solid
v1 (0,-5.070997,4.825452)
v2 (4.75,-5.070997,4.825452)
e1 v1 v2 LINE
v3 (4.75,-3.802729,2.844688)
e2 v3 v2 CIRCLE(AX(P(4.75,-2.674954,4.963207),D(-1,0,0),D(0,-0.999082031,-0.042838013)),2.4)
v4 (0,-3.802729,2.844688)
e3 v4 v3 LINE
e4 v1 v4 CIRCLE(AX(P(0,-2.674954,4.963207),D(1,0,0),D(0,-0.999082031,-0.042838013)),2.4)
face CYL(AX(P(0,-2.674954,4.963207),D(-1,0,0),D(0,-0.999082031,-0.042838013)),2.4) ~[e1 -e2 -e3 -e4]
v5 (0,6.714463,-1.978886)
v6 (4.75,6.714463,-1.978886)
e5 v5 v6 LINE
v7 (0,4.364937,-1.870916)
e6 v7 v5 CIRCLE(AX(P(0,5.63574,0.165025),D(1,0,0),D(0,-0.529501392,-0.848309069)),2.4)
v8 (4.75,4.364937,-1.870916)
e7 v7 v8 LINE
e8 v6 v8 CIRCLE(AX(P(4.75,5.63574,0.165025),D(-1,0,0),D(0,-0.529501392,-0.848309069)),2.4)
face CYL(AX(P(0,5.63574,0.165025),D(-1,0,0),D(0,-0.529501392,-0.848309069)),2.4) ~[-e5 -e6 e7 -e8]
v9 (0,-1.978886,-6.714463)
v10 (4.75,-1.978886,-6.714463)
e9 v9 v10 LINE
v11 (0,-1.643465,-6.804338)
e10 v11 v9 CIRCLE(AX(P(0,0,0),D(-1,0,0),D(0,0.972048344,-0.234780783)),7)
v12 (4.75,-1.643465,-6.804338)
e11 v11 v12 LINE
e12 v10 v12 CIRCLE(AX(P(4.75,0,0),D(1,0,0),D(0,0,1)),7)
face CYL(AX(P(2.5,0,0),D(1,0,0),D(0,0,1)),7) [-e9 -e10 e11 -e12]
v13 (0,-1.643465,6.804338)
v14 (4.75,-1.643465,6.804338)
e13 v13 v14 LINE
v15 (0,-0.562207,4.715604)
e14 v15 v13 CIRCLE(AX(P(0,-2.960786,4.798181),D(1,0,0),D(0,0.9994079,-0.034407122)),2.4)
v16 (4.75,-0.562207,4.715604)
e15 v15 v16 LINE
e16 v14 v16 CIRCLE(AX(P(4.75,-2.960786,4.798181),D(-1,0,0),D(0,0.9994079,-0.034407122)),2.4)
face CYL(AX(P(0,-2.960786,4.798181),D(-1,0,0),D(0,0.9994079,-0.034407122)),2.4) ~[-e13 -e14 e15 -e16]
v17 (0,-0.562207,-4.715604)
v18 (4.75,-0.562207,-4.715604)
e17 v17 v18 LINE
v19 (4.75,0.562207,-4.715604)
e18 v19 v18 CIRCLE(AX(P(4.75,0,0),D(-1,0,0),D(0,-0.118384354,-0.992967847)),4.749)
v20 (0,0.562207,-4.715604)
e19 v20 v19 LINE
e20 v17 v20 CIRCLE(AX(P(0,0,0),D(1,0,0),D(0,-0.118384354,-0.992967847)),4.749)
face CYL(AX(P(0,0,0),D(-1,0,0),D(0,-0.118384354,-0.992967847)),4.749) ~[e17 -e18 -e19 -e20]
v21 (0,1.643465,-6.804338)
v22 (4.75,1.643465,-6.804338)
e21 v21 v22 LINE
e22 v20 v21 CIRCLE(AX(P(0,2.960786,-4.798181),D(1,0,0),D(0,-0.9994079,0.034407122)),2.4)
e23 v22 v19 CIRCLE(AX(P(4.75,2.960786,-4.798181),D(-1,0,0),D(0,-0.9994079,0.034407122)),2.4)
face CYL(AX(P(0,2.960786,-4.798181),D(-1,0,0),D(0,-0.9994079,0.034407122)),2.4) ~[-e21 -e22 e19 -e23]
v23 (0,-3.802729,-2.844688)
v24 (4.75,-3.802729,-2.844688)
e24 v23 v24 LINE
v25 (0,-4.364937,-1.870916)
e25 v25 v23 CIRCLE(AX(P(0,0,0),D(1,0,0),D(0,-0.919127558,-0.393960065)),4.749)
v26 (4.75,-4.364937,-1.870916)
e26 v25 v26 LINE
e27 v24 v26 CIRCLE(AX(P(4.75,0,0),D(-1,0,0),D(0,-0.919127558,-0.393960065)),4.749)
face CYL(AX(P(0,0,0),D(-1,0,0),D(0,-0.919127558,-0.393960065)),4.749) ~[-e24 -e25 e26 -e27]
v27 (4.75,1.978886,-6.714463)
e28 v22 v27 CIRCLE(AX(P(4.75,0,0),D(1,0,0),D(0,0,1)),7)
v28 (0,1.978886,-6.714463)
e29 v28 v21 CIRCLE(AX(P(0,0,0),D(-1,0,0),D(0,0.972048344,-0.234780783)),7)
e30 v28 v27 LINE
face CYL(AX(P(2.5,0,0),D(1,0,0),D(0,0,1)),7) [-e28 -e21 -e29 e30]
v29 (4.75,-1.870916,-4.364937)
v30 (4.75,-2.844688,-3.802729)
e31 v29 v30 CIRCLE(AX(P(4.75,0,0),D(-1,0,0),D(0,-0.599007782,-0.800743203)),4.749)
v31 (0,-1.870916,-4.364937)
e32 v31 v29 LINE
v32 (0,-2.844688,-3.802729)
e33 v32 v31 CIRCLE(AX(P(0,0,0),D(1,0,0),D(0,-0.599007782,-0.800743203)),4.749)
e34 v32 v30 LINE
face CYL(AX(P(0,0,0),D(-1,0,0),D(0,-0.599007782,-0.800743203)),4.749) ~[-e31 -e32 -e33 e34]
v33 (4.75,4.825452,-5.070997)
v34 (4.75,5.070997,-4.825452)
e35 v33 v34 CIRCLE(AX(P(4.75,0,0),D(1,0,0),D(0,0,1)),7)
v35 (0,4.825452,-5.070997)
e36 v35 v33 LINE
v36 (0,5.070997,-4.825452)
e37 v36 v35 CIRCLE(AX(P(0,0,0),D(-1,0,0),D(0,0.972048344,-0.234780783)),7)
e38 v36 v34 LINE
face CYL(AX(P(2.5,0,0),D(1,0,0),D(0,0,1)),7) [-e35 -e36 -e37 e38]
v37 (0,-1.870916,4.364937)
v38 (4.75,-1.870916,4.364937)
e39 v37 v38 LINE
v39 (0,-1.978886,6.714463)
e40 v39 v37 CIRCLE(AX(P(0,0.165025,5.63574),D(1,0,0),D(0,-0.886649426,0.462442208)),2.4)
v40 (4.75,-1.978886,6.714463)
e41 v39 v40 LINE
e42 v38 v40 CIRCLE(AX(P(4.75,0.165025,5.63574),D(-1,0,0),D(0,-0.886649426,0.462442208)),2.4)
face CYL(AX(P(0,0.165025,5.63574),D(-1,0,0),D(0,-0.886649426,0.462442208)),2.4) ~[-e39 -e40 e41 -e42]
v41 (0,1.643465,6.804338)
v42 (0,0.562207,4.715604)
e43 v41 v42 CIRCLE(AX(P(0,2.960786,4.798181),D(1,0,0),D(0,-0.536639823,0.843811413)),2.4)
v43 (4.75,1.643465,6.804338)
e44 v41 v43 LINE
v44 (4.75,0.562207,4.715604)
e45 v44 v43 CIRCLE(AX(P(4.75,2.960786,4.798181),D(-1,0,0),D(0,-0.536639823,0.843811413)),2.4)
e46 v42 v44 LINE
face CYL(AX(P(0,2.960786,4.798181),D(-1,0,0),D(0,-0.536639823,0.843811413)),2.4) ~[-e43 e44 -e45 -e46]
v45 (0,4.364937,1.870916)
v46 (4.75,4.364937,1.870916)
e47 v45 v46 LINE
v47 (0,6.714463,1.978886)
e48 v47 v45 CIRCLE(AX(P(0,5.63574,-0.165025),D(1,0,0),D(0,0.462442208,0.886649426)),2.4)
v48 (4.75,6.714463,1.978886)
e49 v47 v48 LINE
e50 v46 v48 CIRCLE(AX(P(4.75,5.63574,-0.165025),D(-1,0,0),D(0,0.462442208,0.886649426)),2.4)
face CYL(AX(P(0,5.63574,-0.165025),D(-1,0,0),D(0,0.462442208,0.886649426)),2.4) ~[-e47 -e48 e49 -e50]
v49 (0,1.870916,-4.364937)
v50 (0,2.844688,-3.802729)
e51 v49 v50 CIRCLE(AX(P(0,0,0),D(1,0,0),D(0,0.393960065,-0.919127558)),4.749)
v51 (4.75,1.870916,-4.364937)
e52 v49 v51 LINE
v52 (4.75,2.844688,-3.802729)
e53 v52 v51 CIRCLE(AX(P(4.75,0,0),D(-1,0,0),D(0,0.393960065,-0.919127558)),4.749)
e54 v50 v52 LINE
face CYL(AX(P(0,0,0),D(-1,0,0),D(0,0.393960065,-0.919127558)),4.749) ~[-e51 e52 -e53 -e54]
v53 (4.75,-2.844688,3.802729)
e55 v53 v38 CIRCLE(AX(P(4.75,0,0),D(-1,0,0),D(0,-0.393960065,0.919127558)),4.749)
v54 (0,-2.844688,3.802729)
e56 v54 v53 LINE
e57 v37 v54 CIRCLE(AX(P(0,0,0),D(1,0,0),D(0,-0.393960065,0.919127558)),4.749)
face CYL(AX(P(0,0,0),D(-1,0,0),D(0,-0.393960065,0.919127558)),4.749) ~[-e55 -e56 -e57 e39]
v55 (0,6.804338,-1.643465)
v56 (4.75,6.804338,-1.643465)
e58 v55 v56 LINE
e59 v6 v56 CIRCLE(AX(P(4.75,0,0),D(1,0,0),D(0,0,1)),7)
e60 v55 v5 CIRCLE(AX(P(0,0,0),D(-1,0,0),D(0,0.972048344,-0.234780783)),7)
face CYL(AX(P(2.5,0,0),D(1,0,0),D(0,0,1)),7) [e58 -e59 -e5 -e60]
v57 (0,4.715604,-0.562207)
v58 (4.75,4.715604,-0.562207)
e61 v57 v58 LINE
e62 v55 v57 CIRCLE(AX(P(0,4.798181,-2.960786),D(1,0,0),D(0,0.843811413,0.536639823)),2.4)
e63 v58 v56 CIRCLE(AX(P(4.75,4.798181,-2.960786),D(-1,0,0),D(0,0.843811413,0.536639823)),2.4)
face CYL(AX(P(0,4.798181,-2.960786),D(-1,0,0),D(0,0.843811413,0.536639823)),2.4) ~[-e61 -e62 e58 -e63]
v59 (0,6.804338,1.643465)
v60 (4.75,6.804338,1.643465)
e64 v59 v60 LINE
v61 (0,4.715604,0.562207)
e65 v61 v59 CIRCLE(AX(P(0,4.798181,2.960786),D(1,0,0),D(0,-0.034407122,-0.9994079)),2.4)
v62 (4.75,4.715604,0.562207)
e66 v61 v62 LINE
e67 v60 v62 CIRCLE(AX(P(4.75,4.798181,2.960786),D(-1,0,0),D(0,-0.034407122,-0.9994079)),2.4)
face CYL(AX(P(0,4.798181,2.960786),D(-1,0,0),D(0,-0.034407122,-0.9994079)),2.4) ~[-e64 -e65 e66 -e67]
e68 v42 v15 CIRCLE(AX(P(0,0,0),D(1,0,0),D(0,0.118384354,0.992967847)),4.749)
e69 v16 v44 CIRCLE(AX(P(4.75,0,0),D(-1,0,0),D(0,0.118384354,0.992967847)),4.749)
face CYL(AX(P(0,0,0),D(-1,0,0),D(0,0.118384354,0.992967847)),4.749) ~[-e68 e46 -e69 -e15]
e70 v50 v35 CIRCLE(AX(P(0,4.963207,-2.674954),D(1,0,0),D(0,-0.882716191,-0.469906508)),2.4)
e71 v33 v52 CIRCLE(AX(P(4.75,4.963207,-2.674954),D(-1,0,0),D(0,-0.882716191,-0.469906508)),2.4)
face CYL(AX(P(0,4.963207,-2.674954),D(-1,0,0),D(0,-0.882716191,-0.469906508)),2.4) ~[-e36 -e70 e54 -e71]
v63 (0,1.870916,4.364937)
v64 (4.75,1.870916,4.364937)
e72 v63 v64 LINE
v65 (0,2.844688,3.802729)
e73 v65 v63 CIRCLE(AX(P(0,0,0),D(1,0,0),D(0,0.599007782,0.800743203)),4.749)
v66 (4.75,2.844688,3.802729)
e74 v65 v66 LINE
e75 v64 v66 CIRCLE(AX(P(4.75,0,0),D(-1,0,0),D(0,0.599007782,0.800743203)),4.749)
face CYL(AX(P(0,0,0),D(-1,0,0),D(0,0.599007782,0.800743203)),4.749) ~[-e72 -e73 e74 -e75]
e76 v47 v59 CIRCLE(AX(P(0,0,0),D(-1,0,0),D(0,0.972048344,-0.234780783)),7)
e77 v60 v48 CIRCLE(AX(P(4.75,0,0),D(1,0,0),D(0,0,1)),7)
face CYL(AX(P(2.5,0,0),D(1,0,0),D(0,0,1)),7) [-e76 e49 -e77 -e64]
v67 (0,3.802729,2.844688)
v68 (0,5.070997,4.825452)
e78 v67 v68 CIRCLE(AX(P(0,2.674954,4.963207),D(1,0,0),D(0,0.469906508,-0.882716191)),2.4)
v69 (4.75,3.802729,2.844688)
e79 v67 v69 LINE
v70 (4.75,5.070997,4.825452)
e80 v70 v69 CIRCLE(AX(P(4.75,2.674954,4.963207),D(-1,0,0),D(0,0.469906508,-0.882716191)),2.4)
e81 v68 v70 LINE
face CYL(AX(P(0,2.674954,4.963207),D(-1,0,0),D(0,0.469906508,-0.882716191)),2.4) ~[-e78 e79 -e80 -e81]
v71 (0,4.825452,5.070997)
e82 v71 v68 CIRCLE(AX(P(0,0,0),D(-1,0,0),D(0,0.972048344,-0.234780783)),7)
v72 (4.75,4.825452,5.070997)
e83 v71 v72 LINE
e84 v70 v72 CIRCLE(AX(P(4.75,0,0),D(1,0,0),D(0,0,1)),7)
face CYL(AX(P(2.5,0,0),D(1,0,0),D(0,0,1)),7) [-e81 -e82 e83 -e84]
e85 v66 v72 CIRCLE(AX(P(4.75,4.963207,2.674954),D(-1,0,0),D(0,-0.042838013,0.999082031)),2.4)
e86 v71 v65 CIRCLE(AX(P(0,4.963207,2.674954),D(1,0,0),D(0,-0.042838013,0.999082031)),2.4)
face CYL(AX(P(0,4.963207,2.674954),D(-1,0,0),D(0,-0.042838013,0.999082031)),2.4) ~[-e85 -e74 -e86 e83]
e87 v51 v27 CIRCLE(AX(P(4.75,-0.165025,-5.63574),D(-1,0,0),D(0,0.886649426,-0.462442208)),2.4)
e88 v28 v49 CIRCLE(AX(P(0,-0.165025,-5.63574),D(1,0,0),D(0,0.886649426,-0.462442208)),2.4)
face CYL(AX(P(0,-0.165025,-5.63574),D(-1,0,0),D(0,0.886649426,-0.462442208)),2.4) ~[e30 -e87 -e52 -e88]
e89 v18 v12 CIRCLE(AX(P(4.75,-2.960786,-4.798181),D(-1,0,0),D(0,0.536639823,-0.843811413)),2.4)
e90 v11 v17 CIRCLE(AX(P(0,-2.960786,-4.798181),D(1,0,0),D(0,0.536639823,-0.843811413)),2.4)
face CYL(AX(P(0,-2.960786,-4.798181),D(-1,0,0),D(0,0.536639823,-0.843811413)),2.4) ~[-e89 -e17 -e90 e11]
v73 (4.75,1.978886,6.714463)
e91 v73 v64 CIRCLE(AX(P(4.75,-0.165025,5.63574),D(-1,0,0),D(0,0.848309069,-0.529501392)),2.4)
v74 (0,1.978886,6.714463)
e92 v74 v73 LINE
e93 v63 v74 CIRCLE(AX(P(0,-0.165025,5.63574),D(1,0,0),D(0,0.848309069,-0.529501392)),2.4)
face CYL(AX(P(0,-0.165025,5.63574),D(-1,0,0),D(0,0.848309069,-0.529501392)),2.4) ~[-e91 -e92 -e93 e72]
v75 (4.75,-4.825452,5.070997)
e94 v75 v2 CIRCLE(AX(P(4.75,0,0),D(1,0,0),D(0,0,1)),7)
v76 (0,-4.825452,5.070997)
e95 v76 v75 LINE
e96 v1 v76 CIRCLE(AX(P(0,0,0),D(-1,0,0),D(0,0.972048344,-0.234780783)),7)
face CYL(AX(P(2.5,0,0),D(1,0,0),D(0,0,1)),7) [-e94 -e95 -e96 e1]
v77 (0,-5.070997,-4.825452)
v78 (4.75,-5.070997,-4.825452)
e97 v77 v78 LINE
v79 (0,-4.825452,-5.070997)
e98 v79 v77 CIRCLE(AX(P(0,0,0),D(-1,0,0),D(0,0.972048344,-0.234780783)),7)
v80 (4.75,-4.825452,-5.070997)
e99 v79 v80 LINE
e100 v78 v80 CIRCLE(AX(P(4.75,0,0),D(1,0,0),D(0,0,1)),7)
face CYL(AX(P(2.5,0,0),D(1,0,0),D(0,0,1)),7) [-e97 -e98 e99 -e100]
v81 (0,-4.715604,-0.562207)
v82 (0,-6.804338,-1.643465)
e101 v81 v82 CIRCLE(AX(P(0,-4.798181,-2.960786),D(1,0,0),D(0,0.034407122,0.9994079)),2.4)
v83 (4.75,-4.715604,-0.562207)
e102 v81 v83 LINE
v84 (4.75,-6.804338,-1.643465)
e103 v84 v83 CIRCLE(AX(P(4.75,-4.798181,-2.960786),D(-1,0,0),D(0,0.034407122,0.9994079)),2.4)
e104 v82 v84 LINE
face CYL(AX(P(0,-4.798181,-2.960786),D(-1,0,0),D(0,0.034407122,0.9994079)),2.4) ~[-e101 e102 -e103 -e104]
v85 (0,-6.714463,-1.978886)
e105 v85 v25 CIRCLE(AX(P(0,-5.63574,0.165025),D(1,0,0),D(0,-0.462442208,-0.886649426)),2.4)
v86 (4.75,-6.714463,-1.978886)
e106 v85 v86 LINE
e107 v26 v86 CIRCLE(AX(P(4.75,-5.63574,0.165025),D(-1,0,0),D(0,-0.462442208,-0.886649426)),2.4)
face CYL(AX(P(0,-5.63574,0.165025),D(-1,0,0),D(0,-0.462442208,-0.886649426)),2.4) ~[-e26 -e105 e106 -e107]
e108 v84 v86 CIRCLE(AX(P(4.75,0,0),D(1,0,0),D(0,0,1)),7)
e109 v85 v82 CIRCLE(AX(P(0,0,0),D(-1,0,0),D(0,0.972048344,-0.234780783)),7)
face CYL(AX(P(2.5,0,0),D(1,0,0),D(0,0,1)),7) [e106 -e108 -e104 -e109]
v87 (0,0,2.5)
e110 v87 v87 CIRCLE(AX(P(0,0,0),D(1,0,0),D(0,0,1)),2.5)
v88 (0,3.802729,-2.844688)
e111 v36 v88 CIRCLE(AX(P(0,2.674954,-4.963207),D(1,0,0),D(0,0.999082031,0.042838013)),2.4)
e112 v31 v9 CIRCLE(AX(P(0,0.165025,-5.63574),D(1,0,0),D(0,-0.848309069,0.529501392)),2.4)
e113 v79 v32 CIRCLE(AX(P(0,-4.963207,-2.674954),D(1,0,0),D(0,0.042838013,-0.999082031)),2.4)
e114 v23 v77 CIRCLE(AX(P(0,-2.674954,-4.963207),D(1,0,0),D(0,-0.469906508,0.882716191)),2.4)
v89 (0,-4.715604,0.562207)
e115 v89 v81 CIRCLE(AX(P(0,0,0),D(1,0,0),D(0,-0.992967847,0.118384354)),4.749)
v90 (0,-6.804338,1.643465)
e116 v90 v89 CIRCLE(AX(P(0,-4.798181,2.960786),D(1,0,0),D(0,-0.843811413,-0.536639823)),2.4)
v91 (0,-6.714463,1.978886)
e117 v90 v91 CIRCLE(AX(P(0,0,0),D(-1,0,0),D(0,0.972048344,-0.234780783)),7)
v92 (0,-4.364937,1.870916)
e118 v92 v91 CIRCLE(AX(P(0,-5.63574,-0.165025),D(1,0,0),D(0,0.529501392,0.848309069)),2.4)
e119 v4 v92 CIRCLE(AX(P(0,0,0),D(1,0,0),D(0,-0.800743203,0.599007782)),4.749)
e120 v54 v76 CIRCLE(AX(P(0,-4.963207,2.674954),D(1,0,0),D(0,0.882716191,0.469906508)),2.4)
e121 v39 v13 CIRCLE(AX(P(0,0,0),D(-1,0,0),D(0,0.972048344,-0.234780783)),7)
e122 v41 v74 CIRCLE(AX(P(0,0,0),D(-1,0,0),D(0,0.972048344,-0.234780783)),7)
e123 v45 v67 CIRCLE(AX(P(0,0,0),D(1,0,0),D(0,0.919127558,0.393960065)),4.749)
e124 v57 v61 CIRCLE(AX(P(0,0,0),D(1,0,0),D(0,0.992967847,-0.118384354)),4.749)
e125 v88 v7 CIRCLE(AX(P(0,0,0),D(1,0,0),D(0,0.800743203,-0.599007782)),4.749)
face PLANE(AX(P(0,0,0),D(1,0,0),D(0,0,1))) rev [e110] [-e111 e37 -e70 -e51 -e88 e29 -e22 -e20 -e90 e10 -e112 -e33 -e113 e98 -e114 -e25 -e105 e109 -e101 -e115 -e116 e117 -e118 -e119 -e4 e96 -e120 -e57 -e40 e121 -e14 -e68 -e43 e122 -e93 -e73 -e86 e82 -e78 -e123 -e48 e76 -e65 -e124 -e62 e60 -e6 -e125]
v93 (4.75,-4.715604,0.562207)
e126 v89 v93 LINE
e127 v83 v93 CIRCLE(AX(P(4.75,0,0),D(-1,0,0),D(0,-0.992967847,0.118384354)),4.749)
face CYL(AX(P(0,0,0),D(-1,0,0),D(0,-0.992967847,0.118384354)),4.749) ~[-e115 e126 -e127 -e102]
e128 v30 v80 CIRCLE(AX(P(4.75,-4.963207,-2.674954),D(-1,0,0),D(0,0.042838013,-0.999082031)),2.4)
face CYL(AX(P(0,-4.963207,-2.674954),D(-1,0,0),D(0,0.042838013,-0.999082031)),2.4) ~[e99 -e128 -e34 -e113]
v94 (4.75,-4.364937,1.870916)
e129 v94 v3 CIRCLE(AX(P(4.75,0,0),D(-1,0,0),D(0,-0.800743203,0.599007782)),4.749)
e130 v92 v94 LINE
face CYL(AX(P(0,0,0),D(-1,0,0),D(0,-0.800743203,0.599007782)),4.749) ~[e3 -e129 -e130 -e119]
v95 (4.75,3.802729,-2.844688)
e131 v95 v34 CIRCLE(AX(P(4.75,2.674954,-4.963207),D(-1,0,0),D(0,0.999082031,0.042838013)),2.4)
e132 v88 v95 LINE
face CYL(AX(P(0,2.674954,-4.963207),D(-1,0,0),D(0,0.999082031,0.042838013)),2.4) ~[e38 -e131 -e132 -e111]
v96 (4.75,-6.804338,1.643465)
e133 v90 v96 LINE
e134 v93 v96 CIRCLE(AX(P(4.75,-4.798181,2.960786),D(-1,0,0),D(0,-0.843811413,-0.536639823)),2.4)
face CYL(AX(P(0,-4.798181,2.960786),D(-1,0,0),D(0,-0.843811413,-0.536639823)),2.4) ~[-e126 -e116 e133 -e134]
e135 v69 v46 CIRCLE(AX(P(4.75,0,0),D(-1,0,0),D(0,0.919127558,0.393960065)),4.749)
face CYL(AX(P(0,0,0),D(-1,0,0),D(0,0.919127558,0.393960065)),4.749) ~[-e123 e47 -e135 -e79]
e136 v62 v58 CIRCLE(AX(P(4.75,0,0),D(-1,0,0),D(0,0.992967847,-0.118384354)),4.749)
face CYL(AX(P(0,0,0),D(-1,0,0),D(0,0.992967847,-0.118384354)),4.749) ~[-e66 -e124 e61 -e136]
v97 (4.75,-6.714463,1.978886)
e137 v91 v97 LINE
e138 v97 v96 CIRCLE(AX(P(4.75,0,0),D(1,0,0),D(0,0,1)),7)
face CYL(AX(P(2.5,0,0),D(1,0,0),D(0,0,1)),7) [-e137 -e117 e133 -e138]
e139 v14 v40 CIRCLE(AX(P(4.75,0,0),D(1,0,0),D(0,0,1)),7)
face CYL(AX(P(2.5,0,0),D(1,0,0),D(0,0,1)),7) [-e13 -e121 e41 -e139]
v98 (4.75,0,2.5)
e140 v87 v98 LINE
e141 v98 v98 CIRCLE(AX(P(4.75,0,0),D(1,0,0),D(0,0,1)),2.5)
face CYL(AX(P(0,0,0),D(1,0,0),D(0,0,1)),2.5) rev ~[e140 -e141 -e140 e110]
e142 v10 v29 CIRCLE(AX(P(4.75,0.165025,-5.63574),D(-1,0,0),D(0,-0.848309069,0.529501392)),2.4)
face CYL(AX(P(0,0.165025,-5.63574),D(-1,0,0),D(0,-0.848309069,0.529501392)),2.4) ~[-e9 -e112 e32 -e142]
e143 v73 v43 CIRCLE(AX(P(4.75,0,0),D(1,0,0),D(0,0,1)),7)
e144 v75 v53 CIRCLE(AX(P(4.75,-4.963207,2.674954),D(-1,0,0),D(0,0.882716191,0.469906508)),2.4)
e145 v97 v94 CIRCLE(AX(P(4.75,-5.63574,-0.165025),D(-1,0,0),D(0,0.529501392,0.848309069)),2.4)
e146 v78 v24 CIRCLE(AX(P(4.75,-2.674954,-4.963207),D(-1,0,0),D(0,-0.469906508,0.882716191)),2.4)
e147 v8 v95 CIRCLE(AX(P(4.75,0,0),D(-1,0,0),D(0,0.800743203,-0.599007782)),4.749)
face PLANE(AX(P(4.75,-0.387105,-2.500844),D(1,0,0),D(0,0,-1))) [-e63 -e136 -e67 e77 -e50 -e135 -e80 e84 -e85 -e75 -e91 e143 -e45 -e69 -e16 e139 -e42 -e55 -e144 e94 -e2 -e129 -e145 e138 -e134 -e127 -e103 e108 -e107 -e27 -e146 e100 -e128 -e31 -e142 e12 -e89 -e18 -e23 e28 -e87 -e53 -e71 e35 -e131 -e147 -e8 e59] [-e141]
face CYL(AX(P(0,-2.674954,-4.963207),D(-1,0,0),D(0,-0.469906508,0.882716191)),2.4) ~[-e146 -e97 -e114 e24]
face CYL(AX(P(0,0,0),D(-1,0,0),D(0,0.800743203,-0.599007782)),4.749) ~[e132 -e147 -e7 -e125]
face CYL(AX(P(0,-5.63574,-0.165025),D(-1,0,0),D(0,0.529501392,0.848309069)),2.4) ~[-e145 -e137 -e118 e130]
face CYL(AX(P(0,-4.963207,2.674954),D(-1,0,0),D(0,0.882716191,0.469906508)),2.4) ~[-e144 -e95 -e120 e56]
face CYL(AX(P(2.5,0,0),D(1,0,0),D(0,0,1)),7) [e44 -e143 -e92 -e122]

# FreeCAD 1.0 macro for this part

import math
import FreeCAD as App
import Part
import Sketcher
from FreeCAD import Vector
Q = App.Units.Quantity


def add_polygon(sketch, points):
    """Adds a closed chain of lines whose ends are joined by coincident constraints."""
    first, n = sketch.GeometryCount, len(points)
    for a, b in zip(points, points[1:] + points[:1]):
        sketch.addGeometry(Part.LineSegment(App.Vector(*a, 0), App.Vector(*b, 0)), False)
    for i in range(n):
        sketch.addConstraint(Sketcher.Constraint("Coincident", first + i, 2, first + (i + 1) % n, 1))

doc = App.newDocument("Part")
params = doc.addObject("Spreadsheet::Sheet", "Params")
for row, (alias, value) in enumerate([
    ("sketch1_width", "5 mm"),
    ("sketch1_height", "7 mm"),
    ("revolution_angle", "360 deg"),
    ("sketch2_radius", "2.4 mm"),
    ("sketch3_diameter", "5 mm"),
    ("pocket2_length", "100.000102 mm"),
    ("pocket3_length", "0.25 mm"),
], start=1):
    params.set(f"A{row}", alias)
    params.set(f"B{row}", "=" + value)
    params.setAlias(f"B{row}", alias)

body = doc.addObject("PartDesign::Body", "Body")

# Sketch on XZ plane
sketch1 = body.newObject("Sketcher::SketchObject", "Sketch")
sketch1.AttachmentSupport = (doc.getObject("XZ_Plane"), [""])
sketch1.MapMode = "FlatFace"
add_polygon(sketch1, [(0, -7), (0, 0), (5, 0), (5, -7)])  # lines 0-3
sketch1.addConstraint([
    Sketcher.Constraint("Vertical", 0),
    Sketcher.Constraint("Horizontal", 1),
    Sketcher.Constraint("Vertical", 2),
    Sketcher.Constraint("Horizontal", 3),
    Sketcher.Constraint("Coincident", 0, 2, -1, 1),
    Sketcher.Constraint("DistanceX", 1, 1, 1, 2, Q("5 mm")),
    Sketcher.Constraint("DistanceY", 0, 1, 0, 2, Q("7 mm")),
])
sketch1.setExpression("Constraints[9]", "Params.sketch1_width")
sketch1.setExpression("Constraints[10]", "Params.sketch1_height")
revolution = body.newObject("PartDesign::Revolution", "Revolution")
revolution.Profile = sketch1
revolution.ReferenceAxis = (sketch1, ["H_Axis"])
revolution.setExpression("Angle", "Params.revolution_angle")

# Sketch on YZ plane
sketch2 = body.newObject("Sketcher::SketchObject", "Sketch001")
sketch2.AttachmentSupport = (doc.getObject("YZ_Plane"), [""])
sketch2.MapMode = "FlatFace"
sketch2.addGeometry([
    Part.ArcOfCircle(Part.Circle(Vector(0, 0, 0), Vector(0, 0, 1), 4.7), math.radians(-6.8), math.radians(6.8)),
    Part.ArcOfCircle(Part.Circle(Vector(4.8, -3, 0), Vector(0, 0, 1), 2.4), math.radians(32), math.radians(92)),
    Part.ArcOfCircle(Part.Circle(Vector(0, 0, 0), Vector(0, 0, 1), 7), math.radians(-14), math.radians(14)),
    Part.ArcOfCircle(Part.Circle(Vector(4.8, 3, 0), Vector(0, 0, 1), 2.4), math.radians(-92), math.radians(-32)),
], False)
sketch2.addConstraint([
    Sketcher.Constraint("Coincident", 0, 1, 1, 2),
    Sketcher.Constraint("Coincident", 1, 1, 2, 1),
    Sketcher.Constraint("Coincident", 2, 2, 3, 2),
    Sketcher.Constraint("Coincident", 3, 1, 0, 2),
    Sketcher.Constraint("Coincident", 0, 3, -1, 1),
    Sketcher.Constraint("Coincident", 2, 3, -1, 1),
    Sketcher.Constraint("Equal", 1, 3),
    Sketcher.Constraint("Symmetric", 1, 3, 3, 3, -1),
    Sketcher.Constraint("Radius", 1, Q("2.4 mm")),
    Sketcher.Constraint("Radius", 0, Q("4.749 mm")),
    Sketcher.Constraint("Radius", 2, Q("7.0254 mm")),
    Sketcher.Constraint("DistanceY", 1, 1, 2, 2, Q("3.345701 mm")),
    Sketcher.Constraint("DistanceX", -1, 1, 1, 3, Q("4.798181 mm")),
])
sketch2.setExpression("Constraints[8]", "Params.sketch2_radius")
pocket1 = body.newObject("PartDesign::Pocket", "Pocket")
pocket1.Profile = sketch2
pocket1.Type = "ThroughAll"
pocket1.Reversed = True
doc.recompute()

polarpattern = body.newObject("PartDesign::PolarPattern", "PolarPattern")
polarpattern.Originals = [pocket1]
polarpattern.Axis = (doc.getObject("X_Axis"), [""])
polarpattern.Angle = 360
polarpattern.Occurrences = 12
body.Tip = polarpattern

# Sketch on YZ plane
sketch3 = body.newObject("Sketcher::SketchObject", "Sketch002")
sketch3.AttachmentSupport = (doc.getObject("YZ_Plane"), [""])
sketch3.MapMode = "FlatFace"
sketch3.addGeometry(Part.Circle(Vector(0, 0, 0), Vector(0, 0, 1), 2.5), False)
sketch3.addConstraint([
    Sketcher.Constraint("Coincident", 0, 3, -1, 1),
    Sketcher.Constraint("Diameter", 0, Q("5 mm")),
])
sketch3.setExpression("Constraints[1]", "Params.sketch3_diameter")
pocket2 = body.newObject("PartDesign::Pocket", "Pocket001")
pocket2.Profile = sketch3
pocket2.setExpression("Length", "Params.pocket2_length")
pocket2.Midplane = True

# Sketch on YZ plane
sketch4 = body.newObject("Sketcher::SketchObject", "Sketch003")
sketch4.AttachmentSupport = (doc.getObject("YZ_Plane"), [""])
sketch4.MapMode = "FlatFace"
sketch4.AttachmentOffset = App.Placement(Vector(0, 0, 5), App.Rotation())
add_polygon(sketch4, [(8, 8), (-9, 8), (-9, -13), (8, -13)])  # lines 0-3
sketch4.addConstraint([
    Sketcher.Constraint("Horizontal", 0),
    Sketcher.Constraint("Vertical", 1),
    Sketcher.Constraint("Horizontal", 2),
    Sketcher.Constraint("Vertical", 3),
    Sketcher.Constraint("DistanceX", 0, 2, 0, 1, Q("17.337649 mm")),
    Sketcher.Constraint("DistanceY", 1, 2, 1, 1, Q("20.089711 mm")),
    Sketcher.Constraint("DistanceY", 1, 2, -1, 1, Q("12.545699 mm")),
    Sketcher.Constraint("DistanceX", 0, 2, -1, 1, Q("9.05593 mm")),
])
pocket3 = body.newObject("PartDesign::Pocket", "Pocket002")
pocket3.Profile = sketch4
pocket3.setExpression("Length", "Params.pocket3_length")

doc.recompute()
